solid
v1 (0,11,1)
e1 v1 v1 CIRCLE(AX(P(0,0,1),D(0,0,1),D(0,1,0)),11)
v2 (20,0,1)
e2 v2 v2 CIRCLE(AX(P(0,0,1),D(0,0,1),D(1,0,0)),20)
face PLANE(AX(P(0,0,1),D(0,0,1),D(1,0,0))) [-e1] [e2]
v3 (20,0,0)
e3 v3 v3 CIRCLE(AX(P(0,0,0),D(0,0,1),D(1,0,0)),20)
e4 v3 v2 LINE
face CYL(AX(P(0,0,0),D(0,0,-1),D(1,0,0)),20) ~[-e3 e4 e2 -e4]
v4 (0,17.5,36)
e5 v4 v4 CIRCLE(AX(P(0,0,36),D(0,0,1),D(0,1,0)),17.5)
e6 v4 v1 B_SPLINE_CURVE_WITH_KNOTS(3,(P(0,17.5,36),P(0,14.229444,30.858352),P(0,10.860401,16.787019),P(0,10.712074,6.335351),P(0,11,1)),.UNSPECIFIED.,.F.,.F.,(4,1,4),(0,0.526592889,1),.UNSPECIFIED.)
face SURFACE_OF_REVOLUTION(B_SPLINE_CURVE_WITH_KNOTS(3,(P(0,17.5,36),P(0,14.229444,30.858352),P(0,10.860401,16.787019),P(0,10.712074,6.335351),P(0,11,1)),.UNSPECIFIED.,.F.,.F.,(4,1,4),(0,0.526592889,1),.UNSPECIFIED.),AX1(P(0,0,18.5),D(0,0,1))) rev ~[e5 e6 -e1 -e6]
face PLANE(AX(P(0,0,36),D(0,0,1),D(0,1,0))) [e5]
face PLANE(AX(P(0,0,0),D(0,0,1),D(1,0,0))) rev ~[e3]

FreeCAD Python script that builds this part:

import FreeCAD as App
import Part
import Sketcher
from FreeCAD import Vector

doc = App.newDocument("Part")
body = doc.addObject("PartDesign::Body", "Body")

# Sketch on XY plane
sketch1 = body.newObject("Sketcher::SketchObject", "Sketch")
sketch1.AttachmentSupport = (doc.getObject("XY_Plane"), [""])
sketch1.MapMode = "FlatFace"
sketch1.addGeometry(Part.Circle(Vector(0, 0, 0), Vector(0, 0, 1), 20), False)
sketch1.addConstraint([
    Sketcher.Constraint("Coincident", 0, 3, -1, 1),
    Sketcher.Constraint("Diameter", 0, 40.0),
])
pad1 = body.newObject("PartDesign::Pad", "Pad")
pad1.Profile = sketch1
pad1.Length = 1

# Sketch on YZ plane
sketch2 = body.newObject("Sketcher::SketchObject", "Sketch001")
sketch2.AttachmentSupport = (doc.getObject("YZ_Plane"), [""])
sketch2.MapMode = "FlatFace"
sketch2.addGeometry([
    Part.LineSegment(Vector(0, 36, 0), Vector(0, 1, 0)),
    Part.LineSegment(Vector(0, 1, 0), Vector(11, 1, 0)),
    Part.BSplineCurve([Vector(17.5, 36, 0), Vector(14.229444, 30.858352, 0), Vector(10.860401, 16.787019, 0), Vector(10.712074, 6.335351, 0), Vector(11, 1, 0)], [4, 1, 4], [0, 0.526592889, 1], False, 3, [1, 1, 1, 1, 1], False),
    Part.LineSegment(Vector(17.5, 36, 0), Vector(0, 36, 0)),
], False)
sketch2.addConstraint([
    Sketcher.Constraint("Block", 2),
    Sketcher.Constraint("Coincident", 0, 2, 1, 1),
    Sketcher.Constraint("Coincident", 1, 2, 2, 2),
    Sketcher.Constraint("Coincident", 2, 1, 3, 1),
    Sketcher.Constraint("Coincident", 3, 2, 0, 1),
    Sketcher.Constraint("Vertical", 0),
    Sketcher.Constraint("Horizontal", 1),
    Sketcher.Constraint("Horizontal", 3),
    Sketcher.Constraint("PointOnObject", 0, 2, -2),
])
revolution = body.newObject("PartDesign::Revolution", "Revolution")
revolution.Profile = sketch2
revolution.ReferenceAxis = (sketch2, ["V_Axis"])
revolution.Angle = 360

doc.recompute()
